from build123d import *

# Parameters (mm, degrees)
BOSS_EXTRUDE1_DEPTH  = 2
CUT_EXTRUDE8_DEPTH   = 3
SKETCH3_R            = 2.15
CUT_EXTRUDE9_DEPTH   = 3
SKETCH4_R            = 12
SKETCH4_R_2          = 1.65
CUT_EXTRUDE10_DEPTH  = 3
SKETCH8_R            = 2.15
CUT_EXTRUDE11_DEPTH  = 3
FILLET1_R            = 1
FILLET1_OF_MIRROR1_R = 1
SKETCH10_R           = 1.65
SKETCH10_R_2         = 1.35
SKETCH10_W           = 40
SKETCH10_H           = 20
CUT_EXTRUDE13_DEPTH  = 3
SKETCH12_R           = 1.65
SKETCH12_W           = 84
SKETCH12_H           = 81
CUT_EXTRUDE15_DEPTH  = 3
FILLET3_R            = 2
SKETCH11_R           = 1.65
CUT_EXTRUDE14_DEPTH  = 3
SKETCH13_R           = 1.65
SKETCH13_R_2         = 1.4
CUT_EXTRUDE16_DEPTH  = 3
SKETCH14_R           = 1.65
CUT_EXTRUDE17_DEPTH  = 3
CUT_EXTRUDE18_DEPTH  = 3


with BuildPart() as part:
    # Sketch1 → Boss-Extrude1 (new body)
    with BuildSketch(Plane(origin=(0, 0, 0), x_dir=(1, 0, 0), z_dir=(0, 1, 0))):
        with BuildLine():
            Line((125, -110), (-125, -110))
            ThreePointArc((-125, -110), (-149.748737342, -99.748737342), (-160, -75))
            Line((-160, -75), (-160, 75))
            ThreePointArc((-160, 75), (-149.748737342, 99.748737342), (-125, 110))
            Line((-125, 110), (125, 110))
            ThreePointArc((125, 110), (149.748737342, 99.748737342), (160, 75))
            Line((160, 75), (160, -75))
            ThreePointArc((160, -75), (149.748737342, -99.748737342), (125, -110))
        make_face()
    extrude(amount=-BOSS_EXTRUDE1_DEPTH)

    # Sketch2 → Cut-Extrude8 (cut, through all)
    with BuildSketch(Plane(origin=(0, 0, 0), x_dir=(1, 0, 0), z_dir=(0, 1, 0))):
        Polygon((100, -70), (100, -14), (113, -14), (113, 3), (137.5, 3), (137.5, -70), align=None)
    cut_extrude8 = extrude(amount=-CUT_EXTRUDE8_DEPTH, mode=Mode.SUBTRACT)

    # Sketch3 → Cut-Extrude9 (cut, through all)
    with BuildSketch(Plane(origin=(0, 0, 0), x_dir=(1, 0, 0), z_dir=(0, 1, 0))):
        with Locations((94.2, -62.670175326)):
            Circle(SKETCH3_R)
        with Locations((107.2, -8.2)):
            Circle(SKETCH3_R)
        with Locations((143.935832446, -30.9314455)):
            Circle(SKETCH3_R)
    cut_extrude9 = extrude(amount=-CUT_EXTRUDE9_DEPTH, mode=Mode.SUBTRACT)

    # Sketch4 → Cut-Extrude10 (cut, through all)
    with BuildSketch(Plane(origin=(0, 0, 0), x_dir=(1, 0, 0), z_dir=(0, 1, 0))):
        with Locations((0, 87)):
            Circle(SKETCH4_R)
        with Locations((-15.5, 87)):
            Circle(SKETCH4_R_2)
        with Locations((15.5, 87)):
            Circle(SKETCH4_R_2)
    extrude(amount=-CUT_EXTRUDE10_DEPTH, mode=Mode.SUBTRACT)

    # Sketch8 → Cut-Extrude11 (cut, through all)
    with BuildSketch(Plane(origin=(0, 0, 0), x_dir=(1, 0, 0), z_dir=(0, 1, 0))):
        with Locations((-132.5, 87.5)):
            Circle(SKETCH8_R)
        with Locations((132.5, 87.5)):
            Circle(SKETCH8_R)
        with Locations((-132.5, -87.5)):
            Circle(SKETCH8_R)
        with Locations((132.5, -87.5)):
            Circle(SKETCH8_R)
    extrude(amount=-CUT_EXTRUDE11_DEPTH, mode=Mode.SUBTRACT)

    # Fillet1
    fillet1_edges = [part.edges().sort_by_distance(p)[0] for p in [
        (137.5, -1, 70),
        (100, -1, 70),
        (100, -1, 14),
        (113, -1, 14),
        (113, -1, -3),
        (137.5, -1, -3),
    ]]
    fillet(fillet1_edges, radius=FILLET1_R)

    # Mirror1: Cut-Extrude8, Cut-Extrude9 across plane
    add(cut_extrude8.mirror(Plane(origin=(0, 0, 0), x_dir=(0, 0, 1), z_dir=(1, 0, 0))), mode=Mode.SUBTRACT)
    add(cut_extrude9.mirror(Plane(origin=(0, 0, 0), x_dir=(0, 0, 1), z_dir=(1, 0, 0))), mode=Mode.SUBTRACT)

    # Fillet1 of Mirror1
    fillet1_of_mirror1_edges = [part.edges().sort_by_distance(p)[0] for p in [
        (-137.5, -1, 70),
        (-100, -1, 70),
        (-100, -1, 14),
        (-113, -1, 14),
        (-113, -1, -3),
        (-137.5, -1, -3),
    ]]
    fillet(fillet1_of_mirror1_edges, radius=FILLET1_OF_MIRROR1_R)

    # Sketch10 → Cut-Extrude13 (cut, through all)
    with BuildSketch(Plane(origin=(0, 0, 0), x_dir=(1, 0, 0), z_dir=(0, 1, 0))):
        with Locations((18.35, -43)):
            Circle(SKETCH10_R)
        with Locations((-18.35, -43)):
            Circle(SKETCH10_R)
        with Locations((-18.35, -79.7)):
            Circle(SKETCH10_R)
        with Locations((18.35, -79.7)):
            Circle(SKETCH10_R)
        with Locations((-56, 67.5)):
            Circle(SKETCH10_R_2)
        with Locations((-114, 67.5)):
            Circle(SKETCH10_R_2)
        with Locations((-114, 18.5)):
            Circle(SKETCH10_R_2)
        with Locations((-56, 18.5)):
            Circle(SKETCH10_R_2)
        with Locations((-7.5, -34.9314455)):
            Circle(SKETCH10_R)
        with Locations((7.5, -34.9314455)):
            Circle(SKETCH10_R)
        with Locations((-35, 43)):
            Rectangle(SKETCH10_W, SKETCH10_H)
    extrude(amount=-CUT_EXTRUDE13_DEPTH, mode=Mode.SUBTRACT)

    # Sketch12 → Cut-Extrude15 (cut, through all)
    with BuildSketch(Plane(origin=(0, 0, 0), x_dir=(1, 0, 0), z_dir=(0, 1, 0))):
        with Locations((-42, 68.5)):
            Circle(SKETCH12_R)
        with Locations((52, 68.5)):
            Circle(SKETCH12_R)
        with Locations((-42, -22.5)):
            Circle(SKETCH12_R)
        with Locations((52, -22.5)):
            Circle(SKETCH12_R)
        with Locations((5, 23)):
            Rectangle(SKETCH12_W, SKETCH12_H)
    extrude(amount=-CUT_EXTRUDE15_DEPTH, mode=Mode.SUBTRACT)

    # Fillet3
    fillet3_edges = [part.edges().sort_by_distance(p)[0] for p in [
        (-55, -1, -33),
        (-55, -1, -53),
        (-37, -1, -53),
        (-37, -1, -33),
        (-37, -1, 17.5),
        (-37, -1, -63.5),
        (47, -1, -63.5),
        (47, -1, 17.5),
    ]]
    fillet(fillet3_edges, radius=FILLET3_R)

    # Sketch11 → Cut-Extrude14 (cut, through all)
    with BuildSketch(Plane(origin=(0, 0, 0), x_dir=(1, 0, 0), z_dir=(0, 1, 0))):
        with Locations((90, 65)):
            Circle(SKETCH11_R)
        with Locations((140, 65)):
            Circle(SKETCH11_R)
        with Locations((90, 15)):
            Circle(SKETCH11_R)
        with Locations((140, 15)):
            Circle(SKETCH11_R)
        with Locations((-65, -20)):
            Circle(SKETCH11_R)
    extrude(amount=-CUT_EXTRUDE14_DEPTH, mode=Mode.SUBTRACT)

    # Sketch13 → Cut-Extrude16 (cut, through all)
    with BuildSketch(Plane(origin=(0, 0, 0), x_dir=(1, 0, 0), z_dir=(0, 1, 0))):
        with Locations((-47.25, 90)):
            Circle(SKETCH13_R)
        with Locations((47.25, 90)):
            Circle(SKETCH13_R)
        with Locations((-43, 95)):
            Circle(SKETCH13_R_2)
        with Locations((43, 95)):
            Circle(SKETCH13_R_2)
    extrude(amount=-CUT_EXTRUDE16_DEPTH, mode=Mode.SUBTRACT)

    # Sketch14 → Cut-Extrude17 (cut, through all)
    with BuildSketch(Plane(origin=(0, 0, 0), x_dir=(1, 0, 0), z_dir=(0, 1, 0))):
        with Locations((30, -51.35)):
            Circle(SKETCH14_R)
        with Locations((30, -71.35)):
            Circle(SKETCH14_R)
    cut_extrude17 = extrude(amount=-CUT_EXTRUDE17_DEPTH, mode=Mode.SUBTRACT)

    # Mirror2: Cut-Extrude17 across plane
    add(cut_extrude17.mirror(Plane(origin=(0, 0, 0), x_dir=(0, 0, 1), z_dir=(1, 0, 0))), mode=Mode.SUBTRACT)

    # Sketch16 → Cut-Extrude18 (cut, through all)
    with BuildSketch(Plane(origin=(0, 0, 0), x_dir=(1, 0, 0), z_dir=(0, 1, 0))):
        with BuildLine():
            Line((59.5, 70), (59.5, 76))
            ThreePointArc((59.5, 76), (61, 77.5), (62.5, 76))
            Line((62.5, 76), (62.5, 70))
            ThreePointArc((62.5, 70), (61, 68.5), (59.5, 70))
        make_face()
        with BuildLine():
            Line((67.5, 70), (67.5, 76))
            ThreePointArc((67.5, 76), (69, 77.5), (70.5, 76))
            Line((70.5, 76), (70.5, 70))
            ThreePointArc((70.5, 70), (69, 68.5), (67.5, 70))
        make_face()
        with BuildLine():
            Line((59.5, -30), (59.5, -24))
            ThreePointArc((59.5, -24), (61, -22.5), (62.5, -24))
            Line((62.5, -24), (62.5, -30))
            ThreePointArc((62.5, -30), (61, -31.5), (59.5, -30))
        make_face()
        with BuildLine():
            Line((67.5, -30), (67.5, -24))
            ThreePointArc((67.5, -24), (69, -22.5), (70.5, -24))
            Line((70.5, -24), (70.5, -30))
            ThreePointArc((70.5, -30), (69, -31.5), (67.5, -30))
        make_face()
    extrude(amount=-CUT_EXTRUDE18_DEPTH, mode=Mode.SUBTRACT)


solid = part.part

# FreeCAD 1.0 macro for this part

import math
import FreeCAD as App
import Part
import Sketcher
from FreeCAD import Vector


def edges_at(feature, points):
    """Names of the edges that pass closest to the given points."""
    edges = feature.Shape.Edges
    near = lambda p: min(range(len(edges)), key=lambda i: edges[i].distToShape(Part.Vertex(*p))[0])
    return sorted({f"Edge{near(p) + 1}" for p in points})


def add_polygon(sketch, points):
    """Adds a closed chain of lines whose ends are joined by coincident constraints."""
    first, n = sketch.GeometryCount, len(points)
    for a, b in zip(points, points[1:] + points[:1]):
        sketch.addGeometry(Part.LineSegment(App.Vector(*a, 0), App.Vector(*b, 0)), False)
    for i in range(n):
        sketch.addConstraint(Sketcher.Constraint("Coincident", first + i, 2, first + (i + 1) % n, 1))

doc = App.newDocument("Part")
body = doc.addObject("PartDesign::Body", "Body")

# Sketch on XZ plane
sketch1 = body.newObject("Sketcher::SketchObject", "Sketch")
sketch1.AttachmentSupport = (doc.getObject("XZ_Plane"), [""])
sketch1.MapMode = "FlatFace"
sketch1.addGeometry(Part.LineSegment(Vector(-125, 110, 0), Vector(125, 110, 0)), False)
sketch1.addGeometry(Part.ArcOfCircle(Part.Circle(Vector(125, 75, 0), Vector(0, 0, 1), 35), math.radians(0), math.radians(90)), False)
sketch1.addGeometry(Part.LineSegment(Vector(160, 75, 0), Vector(160, -75, 0)), False)
sketch1.addGeometry(Part.ArcOfCircle(Part.Circle(Vector(125, -75, 0), Vector(0, 0, 1), 35), math.radians(-90), math.radians(0)), False)
sketch1.addGeometry(Part.LineSegment(Vector(125, -110, 0), Vector(-125, -110, 0)), False)
sketch1.addGeometry(Part.ArcOfCircle(Part.Circle(Vector(-125, -75, 0), Vector(0, 0, 1), 35), math.radians(180), math.radians(270)), False)
sketch1.addGeometry(Part.LineSegment(Vector(-160, -75, 0), Vector(-160, 75, 0)), False)
sketch1.addGeometry(Part.ArcOfCircle(Part.Circle(Vector(-125, 75, 0), Vector(0, 0, 1), 35), math.radians(90), math.radians(180)), False)
sketch1.addConstraint(Sketcher.Constraint("Tangent", 0, 2, 1, 2))
sketch1.addConstraint(Sketcher.Constraint("Tangent", 1, 1, 2, 1))
sketch1.addConstraint(Sketcher.Constraint("Tangent", 2, 2, 3, 2))
sketch1.addConstraint(Sketcher.Constraint("Tangent", 3, 1, 4, 1))
sketch1.addConstraint(Sketcher.Constraint("Tangent", 4, 2, 5, 2))
sketch1.addConstraint(Sketcher.Constraint("Tangent", 5, 1, 6, 1))
sketch1.addConstraint(Sketcher.Constraint("Tangent", 6, 2, 7, 2))
sketch1.addConstraint(Sketcher.Constraint("Tangent", 7, 1, 0, 1))
sketch1.addConstraint(Sketcher.Constraint("Horizontal", 0))
sketch1.addConstraint(Sketcher.Constraint("Vertical", 2))
sketch1.addConstraint(Sketcher.Constraint("Horizontal", 4))
sketch1.addConstraint(Sketcher.Constraint("Vertical", 6))
sketch1.addConstraint(Sketcher.Constraint("Equal", 1, 3))
sketch1.addConstraint(Sketcher.Constraint("Equal", 3, 5))
sketch1.addConstraint(Sketcher.Constraint("Equal", 5, 7))
sketch1.addConstraint(Sketcher.Constraint("Symmetric", 1, 3, 5, 3, -1, 1))
sketch1.addConstraint(Sketcher.Constraint("Radius", 1, 35.0))
sketch1.addConstraint(Sketcher.Constraint("DistanceX", 0, 1, 0, 2, 250.0))
sketch1.addConstraint(Sketcher.Constraint("DistanceY", 2, 2, 2, 1, 150.0))
pad1 = body.newObject("PartDesign::Pad", "Pad")
pad1.Profile = sketch1
pad1.Length = 2

# Sketch on XZ plane
sketch2 = body.newObject("Sketcher::SketchObject", "Sketch001")
sketch2.AttachmentSupport = (doc.getObject("XZ_Plane"), [""])
sketch2.MapMode = "FlatFace"
add_polygon(sketch2, [(100, 14), (100, 70), (138, 70), (138, -3), (113, -3), (113, 14)])  # lines 0-5
sketch2.addConstraint(Sketcher.Constraint("Vertical", 0))
sketch2.addConstraint(Sketcher.Constraint("Horizontal", 1))
sketch2.addConstraint(Sketcher.Constraint("Vertical", 2))
sketch2.addConstraint(Sketcher.Constraint("Horizontal", 3))
sketch2.addConstraint(Sketcher.Constraint("Vertical", 4))
sketch2.addConstraint(Sketcher.Constraint("Horizontal", 5))
sketch2.addConstraint(Sketcher.Constraint("DistanceX", 5, 2, 5, 1, 13.0))
sketch2.addConstraint(Sketcher.Constraint("DistanceY", 0, 1, 0, 2, 56.0))
sketch2.addConstraint(Sketcher.Constraint("DistanceY", 2, 2, 2, 1, 73.0))
sketch2.addConstraint(Sketcher.Constraint("DistanceX", 1, 1, 1, 2, 37.5))
sketch2.addConstraint(Sketcher.Constraint("DistanceX", -1, 1, 0, 2, 100.0))
sketch2.addConstraint(Sketcher.Constraint("DistanceY", -1, 1, 0, 2, 70.0))
pocket1 = body.newObject("PartDesign::Pocket", "Pocket")
pocket1.Profile = sketch2
pocket1.Type = "ThroughAll"
pocket1.Reversed = True

# Sketch on XZ plane
sketch3 = body.newObject("Sketcher::SketchObject", "Sketch002")
sketch3.AttachmentSupport = (doc.getObject("XZ_Plane"), [""])
sketch3.MapMode = "FlatFace"
sketch3.addGeometry(Part.Circle(Vector(94.2, 62.7, 0), Vector(0, 0, 1), 2.1), False)
sketch3.addGeometry(Part.Circle(Vector(107.2, 8.2, 0), Vector(0, 0, 1), 2.1), False)
sketch3.addGeometry(Part.Circle(Vector(143.9, 30.9, 0), Vector(0, 0, 1), 2.1), False)
sketch3.addConstraint(Sketcher.Constraint("Equal", 0, 1))
sketch3.addConstraint(Sketcher.Constraint("Equal", 1, 2))
sketch3.addConstraint(Sketcher.Constraint("Diameter", 0, 4.3))
sketch3.addConstraint(Sketcher.Constraint("DistanceX", 0, 3, 1, 3, 13.0))
sketch3.addConstraint(Sketcher.Constraint("DistanceX", -1, 1, 0, 3, 94.2))
sketch3.addConstraint(Sketcher.Constraint("DistanceY", -1, 1, 1, 3, 8.2))
sketch3.addConstraint(Sketcher.Constraint("DistanceY", 2, 3, 0, 3, 31.73873))
sketch3.addConstraint(Sketcher.Constraint("DistanceY", -1, 1, 0, 3, 62.670175))
sketch3.addConstraint(Sketcher.Constraint("DistanceX", -1, 1, 2, 3, 143.935832))
pocket2 = body.newObject("PartDesign::Pocket", "Pocket001")
pocket2.Profile = sketch3
pocket2.Type = "ThroughAll"
pocket2.Reversed = True

# Sketch on XZ plane
sketch4 = body.newObject("Sketcher::SketchObject", "Sketch003")
sketch4.AttachmentSupport = (doc.getObject("XZ_Plane"), [""])
sketch4.MapMode = "FlatFace"
sketch4.addGeometry(Part.Circle(Vector(0, -87, 0), Vector(0, 0, 1), 12), False)
sketch4.addGeometry(Part.Circle(Vector(-15.5, -87, 0), Vector(0, 0, 1), 1.6), False)
sketch4.addGeometry(Part.Circle(Vector(15.5, -87, 0), Vector(0, 0, 1), 1.6), False)
sketch4.addConstraint(Sketcher.Constraint("Equal", 1, 2))
sketch4.addConstraint(Sketcher.Constraint("Symmetric", 1, 3, 2, 3, -2))
sketch4.addConstraint(Sketcher.Constraint("PointOnObject", 0, 3, -2))
sketch4.addConstraint(Sketcher.Constraint("Horizontal", 0, 3, 1, 3))
sketch4.addConstraint(Sketcher.Constraint("Diameter", 0, 24.0))
sketch4.addConstraint(Sketcher.Constraint("Diameter", 1, 3.3))
sketch4.addConstraint(Sketcher.Constraint("DistanceY", 0, 3, -1, 1, 87.0))
sketch4.addConstraint(Sketcher.Constraint("DistanceX", 1, 3, 2, 3, 31.0))
pocket3 = body.newObject("PartDesign::Pocket", "Pocket002")
pocket3.Profile = sketch4
pocket3.Type = "ThroughAll"
pocket3.Reversed = True

# Sketch on XZ plane
sketch5 = body.newObject("Sketcher::SketchObject", "Sketch004")
sketch5.AttachmentSupport = (doc.getObject("XZ_Plane"), [""])
sketch5.MapMode = "FlatFace"
sketch5.addGeometry(Part.Circle(Vector(-132.5, -87.5, 0), Vector(0, 0, 1), 2.1), False)
sketch5.addGeometry(Part.Circle(Vector(132.5, -87.5, 0), Vector(0, 0, 1), 2.1), False)
sketch5.addGeometry(Part.Circle(Vector(-132.5, 87.5, 0), Vector(0, 0, 1), 2.1), False)
sketch5.addGeometry(Part.Circle(Vector(132.5, 87.5, 0), Vector(0, 0, 1), 2.1), False)
sketch5.addConstraint(Sketcher.Constraint("Equal", 0, 1))
sketch5.addConstraint(Sketcher.Constraint("Equal", 1, 2))
sketch5.addConstraint(Sketcher.Constraint("Equal", 2, 3))
sketch5.addConstraint(Sketcher.Constraint("Symmetric", 1, 3, 2, 3, -1, 1))
sketch5.addConstraint(Sketcher.Constraint("Symmetric", 0, 3, 3, 3, -1, 1))
sketch5.addConstraint(Sketcher.Constraint("Symmetric", 0, 3, 1, 3, -2))
sketch5.addConstraint(Sketcher.Constraint("Diameter", 0, 4.3))
sketch5.addConstraint(Sketcher.Constraint("DistanceX", 0, 3, 1, 3, 265.0))
sketch5.addConstraint(Sketcher.Constraint("DistanceY", 0, 3, 2, 3, 175.0))
pocket4 = body.newObject("PartDesign::Pocket", "Pocket003")
pocket4.Profile = sketch5
pocket4.Type = "ThroughAll"
pocket4.Reversed = True
doc.recompute()

fillet = body.newObject("PartDesign::Fillet", "Fillet")
fillet.Base = (pocket4, edges_at(pocket4, [
    (137.5, -1, 70),
    (100, -1, 70),
    (100, -1, 14),
    (113, -1, 14),
    (113, -1, -3),
    (137.5, -1, -3),
]))
fillet.Radius = 1
doc.recompute()

mirrored = body.newObject("PartDesign::Mirrored", "Mirrored")
mirrored.Originals = [pocket1, pocket2]
mirrored.MirrorPlane = (doc.getObject("YZ_Plane"), [""])
body.Tip = mirrored
doc.recompute()

fillet2 = body.newObject("PartDesign::Fillet", "Fillet001")
fillet2.Base = (mirrored, edges_at(mirrored, [
    (-137.5, -1, 70),
    (-100, -1, 70),
    (-100, -1, 14),
    (-113, -1, 14),
    (-113, -1, -3),
    (-137.5, -1, -3),
]))
fillet2.Radius = 1

# Sketch on XZ plane
sketch6 = body.newObject("Sketcher::SketchObject", "Sketch005")
sketch6.AttachmentSupport = (doc.getObject("XZ_Plane"), [""])
sketch6.MapMode = "FlatFace"
sketch6.addGeometry(Part.Circle(Vector(18.4, 43, 0), Vector(0, 0, 1), 1.6), False)  # 0
sketch6.addGeometry(Part.Circle(Vector(-18.4, 43, 0), Vector(0, 0, 1), 1.6), False)  # 1
sketch6.addGeometry(Part.Circle(Vector(-18.4, 79.7, 0), Vector(0, 0, 1), 1.6), False)  # 2
sketch6.addGeometry(Part.Circle(Vector(18.4, 79.7, 0), Vector(0, 0, 1), 1.6), False)  # 3
sketch6.addGeometry(Part.Circle(Vector(-56, -67.5, 0), Vector(0, 0, 1), 1.4), False)  # 4
sketch6.addGeometry(Part.Circle(Vector(-114, -67.5, 0), Vector(0, 0, 1), 1.4), False)  # 5
sketch6.addGeometry(Part.Circle(Vector(-114, -18.5, 0), Vector(0, 0, 1), 1.4), False)  # 6
sketch6.addGeometry(Part.Circle(Vector(-56, -18.5, 0), Vector(0, 0, 1), 1.4), False)  # 7
sketch6.addGeometry(Part.Circle(Vector(-7.5, 34.9, 0), Vector(0, 0, 1), 1.6), False)  # 8
sketch6.addGeometry(Part.Circle(Vector(7.5, 34.9, 0), Vector(0, 0, 1), 1.6), False)  # 9
add_polygon(sketch6, [(-55, -53), (-55, -33), (-15, -33), (-15, -53)])  # lines 10-13
sketch6.addConstraint(Sketcher.Constraint("Vertical", 10))
sketch6.addConstraint(Sketcher.Constraint("Horizontal", 11))
sketch6.addConstraint(Sketcher.Constraint("Vertical", 12))
sketch6.addConstraint(Sketcher.Constraint("Horizontal", 13))
sketch6.addConstraint(Sketcher.Constraint("Equal", 0, 1))
sketch6.addConstraint(Sketcher.Constraint("Equal", 1, 2))
sketch6.addConstraint(Sketcher.Constraint("Equal", 2, 3))
sketch6.addConstraint(Sketcher.Constraint("Equal", 4, 5))
sketch6.addConstraint(Sketcher.Constraint("Equal", 5, 6))
sketch6.addConstraint(Sketcher.Constraint("Equal", 6, 7))
sketch6.addConstraint(Sketcher.Constraint("Equal", 3, 8))
sketch6.addConstraint(Sketcher.Constraint("Equal", 8, 9))
sketch6.addConstraint(Sketcher.Constraint("Symmetric", 0, 3, 1, 3, -2))
sketch6.addConstraint(Sketcher.Constraint("Symmetric", 2, 3, 3, 3, -2))
sketch6.addConstraint(Sketcher.Constraint("Symmetric", 8, 3, 9, 3, -2))
sketch6.addConstraint(Sketcher.Constraint("Horizontal", 4, 3, 5, 3))
sketch6.addConstraint(Sketcher.Constraint("Horizontal", 6, 3, 7, 3))
sketch6.addConstraint(Sketcher.Constraint("Vertical", 1, 3, 2, 3))
sketch6.addConstraint(Sketcher.Constraint("Vertical", 5, 3, 6, 3))
sketch6.addConstraint(Sketcher.Constraint("Vertical", 4, 3, 7, 3))
sketch6.addConstraint(Sketcher.Constraint("Diameter", 0, 3.3))
sketch6.addConstraint(Sketcher.Constraint("Diameter", 4, 2.7))
sketch6.addConstraint(Sketcher.Constraint("DistanceX", 11, 1, 11, 2, 40.0))
sketch6.addConstraint(Sketcher.Constraint("DistanceY", 10, 1, 10, 2, 20.0))
sketch6.addConstraint(Sketcher.Constraint("DistanceY", -1, 1, 0, 3, 43.0))
sketch6.addConstraint(Sketcher.Constraint("DistanceX", 4, 3, -1, 1, 56.0))
sketch6.addConstraint(Sketcher.Constraint("DistanceX", 5, 3, -1, 1, 114.0))
sketch6.addConstraint(Sketcher.Constraint("DistanceX", 10, 2, -1, 1, 55.0))
sketch6.addConstraint(Sketcher.Constraint("DistanceY", 10, 2, -1, 1, 33.0))
sketch6.addConstraint(Sketcher.Constraint("DistanceY", 5, 3, 6, 3, 49.0))
sketch6.addConstraint(Sketcher.Constraint("DistanceX", 8, 3, 9, 3, 15.0))
sketch6.addConstraint(Sketcher.Constraint("DistanceY", -1, 1, 2, 3, 79.7))
sketch6.addConstraint(Sketcher.Constraint("DistanceY", 4, 3, -1, 1, 67.5))
sketch6.addConstraint(Sketcher.Constraint("DistanceX", 1, 3, 0, 3, 36.7))
sketch6.addConstraint(Sketcher.Constraint("DistanceY", -1, 1, 8, 3, 34.931446))
pocket5 = body.newObject("PartDesign::Pocket", "Pocket004")
pocket5.Profile = sketch6
pocket5.Type = "ThroughAll"
pocket5.Reversed = True

# Sketch on XZ plane
sketch7 = body.newObject("Sketcher::SketchObject", "Sketch006")
sketch7.AttachmentSupport = (doc.getObject("XZ_Plane"), [""])
sketch7.MapMode = "FlatFace"
sketch7.addGeometry(Part.Circle(Vector(-42, -68.5, 0), Vector(0, 0, 1), 1.6), False)  # 0
sketch7.addGeometry(Part.Circle(Vector(52, -68.5, 0), Vector(0, 0, 1), 1.6), False)  # 1
sketch7.addGeometry(Part.Circle(Vector(-42, 22.5, 0), Vector(0, 0, 1), 1.6), False)  # 2
sketch7.addGeometry(Part.Circle(Vector(52, 22.5, 0), Vector(0, 0, 1), 1.6), False)  # 3
add_polygon(sketch7, [(-37, -63.5), (-37, 17.5), (47, 17.5), (47, -63.5)])  # lines 4-7
sketch7.addConstraint(Sketcher.Constraint("Vertical", 4))
sketch7.addConstraint(Sketcher.Constraint("Horizontal", 5))
sketch7.addConstraint(Sketcher.Constraint("Vertical", 6))
sketch7.addConstraint(Sketcher.Constraint("Horizontal", 7))
sketch7.addConstraint(Sketcher.Constraint("Equal", 0, 1))
sketch7.addConstraint(Sketcher.Constraint("Equal", 1, 2))
sketch7.addConstraint(Sketcher.Constraint("Equal", 2, 3))
sketch7.addConstraint(Sketcher.Constraint("Horizontal", 0, 3, 1, 3))
sketch7.addConstraint(Sketcher.Constraint("Horizontal", 2, 3, 3, 3))
sketch7.addConstraint(Sketcher.Constraint("Vertical", 0, 3, 2, 3))
sketch7.addConstraint(Sketcher.Constraint("Vertical", 1, 3, 3, 3))
sketch7.addConstraint(Sketcher.Constraint("Diameter", 0, 3.3))
sketch7.addConstraint(Sketcher.Constraint("DistanceX", 5, 1, 5, 2, 84.0))
sketch7.addConstraint(Sketcher.Constraint("DistanceY", 4, 1, 4, 2, 81.0))
sketch7.addConstraint(Sketcher.Constraint("DistanceX", 0, 3, -1, 1, 42.0))
sketch7.addConstraint(Sketcher.Constraint("DistanceX", -1, 1, 1, 3, 52.0))
sketch7.addConstraint(Sketcher.Constraint("DistanceX", 4, 2, -1, 1, 37.0))
sketch7.addConstraint(Sketcher.Constraint("DistanceY", 0, 3, 2, 3, 91.0))
sketch7.addConstraint(Sketcher.Constraint("DistanceY", 4, 2, 2, 3, 5.0))
sketch7.addConstraint(Sketcher.Constraint("DistanceY", 0, 3, -1, 1, 68.5))
pocket6 = body.newObject("PartDesign::Pocket", "Pocket005")
pocket6.Profile = sketch7
pocket6.Type = "ThroughAll"
pocket6.Reversed = True
doc.recompute()

fillet3 = body.newObject("PartDesign::Fillet", "Fillet002")
fillet3.Base = (pocket6, edges_at(pocket6, [
    (-55, -1, -33),
    (-55, -1, -53),
    (-37, -1, -53),
    (-37, -1, -33),
    (-37, -1, 17.5),
    (-37, -1, -63.5),
    (47, -1, -63.5),
    (47, -1, 17.5),
]))
fillet3.Radius = 2

# Sketch on XZ plane
sketch8 = body.newObject("Sketcher::SketchObject", "Sketch007")
sketch8.AttachmentSupport = (doc.getObject("XZ_Plane"), [""])
sketch8.MapMode = "FlatFace"
sketch8.addGeometry(Part.Circle(Vector(90, -65, 0), Vector(0, 0, 1), 1.6), False)
sketch8.addGeometry(Part.Circle(Vector(140, -65, 0), Vector(0, 0, 1), 1.6), False)
sketch8.addGeometry(Part.Circle(Vector(90, -15, 0), Vector(0, 0, 1), 1.6), False)
sketch8.addGeometry(Part.Circle(Vector(140, -15, 0), Vector(0, 0, 1), 1.6), False)
sketch8.addGeometry(Part.Circle(Vector(-65, 20, 0), Vector(0, 0, 1), 1.6), False)
sketch8.addConstraint(Sketcher.Constraint("Equal", 0, 1))
sketch8.addConstraint(Sketcher.Constraint("Equal", 1, 2))
sketch8.addConstraint(Sketcher.Constraint("Equal", 2, 3))
sketch8.addConstraint(Sketcher.Constraint("Equal", 3, 4))
sketch8.addConstraint(Sketcher.Constraint("Horizontal", 0, 3, 1, 3))
sketch8.addConstraint(Sketcher.Constraint("Horizontal", 2, 3, 3, 3))
sketch8.addConstraint(Sketcher.Constraint("Vertical", 0, 3, 2, 3))
sketch8.addConstraint(Sketcher.Constraint("Vertical", 1, 3, 3, 3))
sketch8.addConstraint(Sketcher.Constraint("Diameter", 0, 3.3))
sketch8.addConstraint(Sketcher.Constraint("DistanceX", -1, 1, 0, 3, 90.0))
sketch8.addConstraint(Sketcher.Constraint("DistanceY", 0, 3, -1, 1, 65.0))
sketch8.addConstraint(Sketcher.Constraint("DistanceX", -1, 1, 1, 3, 140.0))
sketch8.addConstraint(Sketcher.Constraint("DistanceY", 2, 3, -1, 1, 15.0))
sketch8.addConstraint(Sketcher.Constraint("DistanceX", 4, 3, -1, 1, 65.0))
sketch8.addConstraint(Sketcher.Constraint("DistanceY", -1, 1, 4, 3, 20.0))
pocket7 = body.newObject("PartDesign::Pocket", "Pocket006")
pocket7.Profile = sketch8
pocket7.Type = "ThroughAll"
pocket7.Reversed = True

# Sketch on XZ plane
sketch9 = body.newObject("Sketcher::SketchObject", "Sketch008")
sketch9.AttachmentSupport = (doc.getObject("XZ_Plane"), [""])
sketch9.MapMode = "FlatFace"
sketch9.addGeometry(Part.Circle(Vector(-47.2, -90, 0), Vector(0, 0, 1), 1.6), False)
sketch9.addGeometry(Part.Circle(Vector(47.2, -90, 0), Vector(0, 0, 1), 1.6), False)
sketch9.addGeometry(Part.Circle(Vector(-43, -95, 0), Vector(0, 0, 1), 1.4), False)
sketch9.addGeometry(Part.Circle(Vector(43, -95, 0), Vector(0, 0, 1), 1.4), False)
sketch9.addConstraint(Sketcher.Constraint("Equal", 0, 1))
sketch9.addConstraint(Sketcher.Constraint("Equal", 2, 3))
sketch9.addConstraint(Sketcher.Constraint("Symmetric", 0, 3, 1, 3, -2))
sketch9.addConstraint(Sketcher.Constraint("Symmetric", 2, 3, 3, 3, -2))
sketch9.addConstraint(Sketcher.Constraint("Diameter", 0, 3.3))
sketch9.addConstraint(Sketcher.Constraint("Diameter", 2, 2.8))
sketch9.addConstraint(Sketcher.Constraint("DistanceY", 0, 3, -1, 1, 90.0))
sketch9.addConstraint(Sketcher.Constraint("DistanceX", 2, 3, -1, 1, 43.0))
sketch9.addConstraint(Sketcher.Constraint("DistanceY", 2, 3, -1, 1, 95.0))
sketch9.addConstraint(Sketcher.Constraint("DistanceX", 0, 3, 1, 3, 94.5))
pocket8 = body.newObject("PartDesign::Pocket", "Pocket007")
pocket8.Profile = sketch9
pocket8.Type = "ThroughAll"
pocket8.Reversed = True

# Sketch on XZ plane
sketch10 = body.newObject("Sketcher::SketchObject", "Sketch009")
sketch10.AttachmentSupport = (doc.getObject("XZ_Plane"), [""])
sketch10.MapMode = "FlatFace"
sketch10.addGeometry(Part.Circle(Vector(30, 51.4, 0), Vector(0, 0, 1), 1.6), False)
sketch10.addGeometry(Part.Circle(Vector(30, 71.3, 0), Vector(0, 0, 1), 1.6), False)
sketch10.addConstraint(Sketcher.Constraint("Equal", 0, 1))
sketch10.addConstraint(Sketcher.Constraint("Vertical", 0, 3, 1, 3))
sketch10.addConstraint(Sketcher.Constraint("Diameter", 0, 3.3))
sketch10.addConstraint(Sketcher.Constraint("DistanceX", -1, 1, 0, 3, 30.0))
sketch10.addConstraint(Sketcher.Constraint("DistanceY", 0, 3, 1, 3, 20.0))
sketch10.addConstraint(Sketcher.Constraint("DistanceY", -1, 1, 0, 3, 51.35))
pocket9 = body.newObject("PartDesign::Pocket", "Pocket008")
pocket9.Profile = sketch10
pocket9.Type = "ThroughAll"
pocket9.Reversed = True
doc.recompute()

mirrored2 = body.newObject("PartDesign::Mirrored", "Mirrored001")
mirrored2.Originals = [pocket9]
mirrored2.MirrorPlane = (doc.getObject("YZ_Plane"), [""])
body.Tip = mirrored2

# Sketch on XZ plane
sketch11 = body.newObject("Sketcher::SketchObject", "Sketch010")
sketch11.AttachmentSupport = (doc.getObject("XZ_Plane"), [""])
sketch11.MapMode = "FlatFace"
sketch11.addGeometry(Part.LineSegment(Vector(59.5, -76, 0), Vector(59.5, -70, 0)), False)
sketch11.addGeometry(Part.ArcOfCircle(Part.Circle(Vector(61, -70, 0), Vector(0, 0, 1), 1.5), math.radians(0), math.radians(180)), False)
sketch11.addGeometry(Part.LineSegment(Vector(62.5, -70, 0), Vector(62.5, -76, 0)), False)
sketch11.addGeometry(Part.ArcOfCircle(Part.Circle(Vector(61, -76, 0), Vector(0, 0, 1), 1.5), math.radians(180), math.radians(360)), False)
sketch11.addGeometry(Part.LineSegment(Vector(67.5, -76, 0), Vector(67.5, -70, 0)), False)
sketch11.addGeometry(Part.ArcOfCircle(Part.Circle(Vector(69, -70, 0), Vector(0, 0, 1), 1.5), math.radians(0), math.radians(180)), False)
sketch11.addGeometry(Part.LineSegment(Vector(70.5, -70, 0), Vector(70.5, -76, 0)), False)
sketch11.addGeometry(Part.ArcOfCircle(Part.Circle(Vector(69, -76, 0), Vector(0, 0, 1), 1.5), math.radians(180), math.radians(360)), False)
sketch11.addGeometry(Part.LineSegment(Vector(59.5, 24, 0), Vector(59.5, 30, 0)), False)
sketch11.addGeometry(Part.ArcOfCircle(Part.Circle(Vector(61, 30, 0), Vector(0, 0, 1), 1.5), math.radians(0), math.radians(180)), False)
sketch11.addGeometry(Part.LineSegment(Vector(62.5, 30, 0), Vector(62.5, 24, 0)), False)
sketch11.addGeometry(Part.ArcOfCircle(Part.Circle(Vector(61, 24, 0), Vector(0, 0, 1), 1.5), math.radians(180), math.radians(360)), False)
sketch11.addGeometry(Part.LineSegment(Vector(67.5, 24, 0), Vector(67.5, 30, 0)), False)
sketch11.addGeometry(Part.ArcOfCircle(Part.Circle(Vector(69, 30, 0), Vector(0, 0, 1), 1.5), math.radians(0), math.radians(180)), False)
sketch11.addGeometry(Part.LineSegment(Vector(70.5, 30, 0), Vector(70.5, 24, 0)), False)
sketch11.addGeometry(Part.ArcOfCircle(Part.Circle(Vector(69, 24, 0), Vector(0, 0, 1), 1.5), math.radians(180), math.radians(360)), False)
sketch11.addConstraint(Sketcher.Constraint("Tangent", 0, 2, 1, 2))
sketch11.addConstraint(Sketcher.Constraint("Tangent", 1, 1, 2, 1))
sketch11.addConstraint(Sketcher.Constraint("Tangent", 2, 2, 3, 2))
sketch11.addConstraint(Sketcher.Constraint("Tangent", 3, 1, 0, 1))
sketch11.addConstraint(Sketcher.Constraint("Tangent", 4, 2, 5, 2))
sketch11.addConstraint(Sketcher.Constraint("Tangent", 5, 1, 6, 1))
sketch11.addConstraint(Sketcher.Constraint("Tangent", 6, 2, 7, 2))
sketch11.addConstraint(Sketcher.Constraint("Tangent", 7, 1, 4, 1))
sketch11.addConstraint(Sketcher.Constraint("Tangent", 8, 2, 9, 2))
sketch11.addConstraint(Sketcher.Constraint("Tangent", 9, 1, 10, 1))
sketch11.addConstraint(Sketcher.Constraint("Tangent", 10, 2, 11, 2))
sketch11.addConstraint(Sketcher.Constraint("Tangent", 11, 1, 8, 1))
sketch11.addConstraint(Sketcher.Constraint("Tangent", 12, 2, 13, 2))
sketch11.addConstraint(Sketcher.Constraint("Tangent", 13, 1, 14, 1))
sketch11.addConstraint(Sketcher.Constraint("Tangent", 14, 2, 15, 2))
sketch11.addConstraint(Sketcher.Constraint("Tangent", 15, 1, 12, 1))
sketch11.addConstraint(Sketcher.Constraint("Vertical", 0))
sketch11.addConstraint(Sketcher.Constraint("Vertical", 2))
sketch11.addConstraint(Sketcher.Constraint("Vertical", 4))
sketch11.addConstraint(Sketcher.Constraint("Vertical", 6))
sketch11.addConstraint(Sketcher.Constraint("Vertical", 8))
sketch11.addConstraint(Sketcher.Constraint("Vertical", 10))
sketch11.addConstraint(Sketcher.Constraint("Vertical", 12))
sketch11.addConstraint(Sketcher.Constraint("Vertical", 14))
sketch11.addConstraint(Sketcher.Constraint("Equal", 3, 5))
sketch11.addConstraint(Sketcher.Constraint("Equal", 7, 9))
sketch11.addConstraint(Sketcher.Constraint("Equal", 11, 13))
sketch11.addConstraint(Sketcher.Constraint("Horizontal", 1, 3, 5, 3))
sketch11.addConstraint(Sketcher.Constraint("Horizontal", 3, 3, 7, 3))
sketch11.addConstraint(Sketcher.Constraint("Horizontal", 9, 3, 13, 3))
sketch11.addConstraint(Sketcher.Constraint("Horizontal", 11, 3, 15, 3))
sketch11.addConstraint(Sketcher.Constraint("Vertical", 3, 3, 9, 3))
sketch11.addConstraint(Sketcher.Constraint("Vertical", 7, 3, 13, 3))
sketch11.addConstraint(Sketcher.Constraint("Equal", 6, 8))
sketch11.addConstraint(Sketcher.Constraint("Radius", 1, 1.5))
sketch11.addConstraint(Sketcher.Constraint("DistanceY", 0, 1, 0, 2, 6.0))
sketch11.addConstraint(Sketcher.Constraint("DistanceX", -1, 1, 1, 3, 61.0))
sketch11.addConstraint(Sketcher.Constraint("DistanceY", 1, 3, -1, 1, 70.0))
sketch11.addConstraint(Sketcher.Constraint("DistanceX", -1, 1, 5, 3, 69.0))
sketch11.addConstraint(Sketcher.Constraint("DistanceY", -1, 1, 9, 3, 30.0))
pocket10 = body.newObject("PartDesign::Pocket", "Pocket009")
pocket10.Profile = sketch11
pocket10.Type = "ThroughAll"
pocket10.Reversed = True

doc.recompute()
